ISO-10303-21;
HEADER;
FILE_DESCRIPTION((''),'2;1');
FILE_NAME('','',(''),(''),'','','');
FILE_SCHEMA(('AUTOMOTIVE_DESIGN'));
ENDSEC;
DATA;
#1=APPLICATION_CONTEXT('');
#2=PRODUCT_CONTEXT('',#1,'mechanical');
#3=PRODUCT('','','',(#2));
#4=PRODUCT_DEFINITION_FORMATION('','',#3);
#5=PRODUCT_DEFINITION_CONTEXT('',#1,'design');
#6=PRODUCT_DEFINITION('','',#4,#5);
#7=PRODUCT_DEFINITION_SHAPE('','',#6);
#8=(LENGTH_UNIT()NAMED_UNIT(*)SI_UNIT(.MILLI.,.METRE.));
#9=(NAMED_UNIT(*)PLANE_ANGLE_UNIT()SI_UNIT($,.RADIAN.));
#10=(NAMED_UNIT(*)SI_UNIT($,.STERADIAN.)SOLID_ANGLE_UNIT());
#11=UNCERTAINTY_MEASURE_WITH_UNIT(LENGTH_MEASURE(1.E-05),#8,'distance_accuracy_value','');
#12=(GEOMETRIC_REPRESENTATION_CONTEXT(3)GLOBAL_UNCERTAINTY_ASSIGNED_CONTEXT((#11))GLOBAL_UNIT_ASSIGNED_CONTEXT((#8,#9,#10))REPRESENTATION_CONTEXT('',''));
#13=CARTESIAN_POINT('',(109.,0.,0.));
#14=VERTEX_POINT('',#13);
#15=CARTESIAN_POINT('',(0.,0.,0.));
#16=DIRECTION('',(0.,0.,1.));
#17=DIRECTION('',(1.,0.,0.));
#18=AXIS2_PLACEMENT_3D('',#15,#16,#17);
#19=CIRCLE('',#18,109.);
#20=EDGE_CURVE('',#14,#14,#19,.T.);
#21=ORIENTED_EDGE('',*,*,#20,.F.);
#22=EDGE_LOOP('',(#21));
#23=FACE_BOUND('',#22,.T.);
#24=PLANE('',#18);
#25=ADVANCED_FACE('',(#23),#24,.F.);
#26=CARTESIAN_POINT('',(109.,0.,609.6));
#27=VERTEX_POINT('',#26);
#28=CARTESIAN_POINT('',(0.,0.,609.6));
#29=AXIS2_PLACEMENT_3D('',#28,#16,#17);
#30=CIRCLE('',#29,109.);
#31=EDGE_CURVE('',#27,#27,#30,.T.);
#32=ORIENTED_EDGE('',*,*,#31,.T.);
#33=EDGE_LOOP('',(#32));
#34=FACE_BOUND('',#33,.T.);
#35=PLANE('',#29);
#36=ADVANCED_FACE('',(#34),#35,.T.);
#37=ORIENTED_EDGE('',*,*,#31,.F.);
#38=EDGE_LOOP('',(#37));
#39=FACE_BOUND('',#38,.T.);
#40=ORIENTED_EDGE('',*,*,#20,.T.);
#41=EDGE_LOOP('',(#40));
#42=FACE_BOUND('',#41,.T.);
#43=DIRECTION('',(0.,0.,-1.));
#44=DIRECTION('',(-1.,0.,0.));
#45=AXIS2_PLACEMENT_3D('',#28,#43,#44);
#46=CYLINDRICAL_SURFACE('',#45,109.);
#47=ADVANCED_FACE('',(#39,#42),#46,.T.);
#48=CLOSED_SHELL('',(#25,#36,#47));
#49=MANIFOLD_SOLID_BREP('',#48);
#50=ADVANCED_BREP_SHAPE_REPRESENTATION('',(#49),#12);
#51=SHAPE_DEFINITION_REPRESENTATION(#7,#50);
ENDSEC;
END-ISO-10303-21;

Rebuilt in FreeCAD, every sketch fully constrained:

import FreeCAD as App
import Part
import Sketcher
from FreeCAD import Vector

doc = App.newDocument("Part")
body = doc.addObject("PartDesign::Body", "Body")

sketch1 = body.newObject("Sketcher::SketchObject", "Sketch")
sketch1.AttachmentSupport = (doc.getObject("XY_Plane"), [""])
sketch1.MapMode = "FlatFace"
sketch1.addGeometry(Part.Circle(Vector(0, 0, 0), Vector(0, 0, 1), 109), False)
sketch1.addGeometry(Part.Circle(Vector(0, 0, 0), Vector(0, 0, 1), 100), False)
sketch1.addConstraint(Sketcher.Constraint("Coincident", 0, 3, -1, 1))
sketch1.addConstraint(Sketcher.Constraint("Coincident", 1, 3, -1, 1))
sketch1.addConstraint(Sketcher.Constraint("Diameter", 0, 218.0))
sketch1.addConstraint(Sketcher.Constraint("Diameter", 1, 200.4))
pad1 = body.newObject("PartDesign::Pad", "Pad")
pad1.Profile = sketch1
pad1.Length = 609.6

sketch2 = body.newObject("Sketcher::SketchObject", "Sketch001")
sketch2.AttachmentSupport = (doc.getObject("XY_Plane"), [""])
sketch2.MapMode = "FlatFace"
sketch2.addGeometry(Part.Circle(Vector(0, 0, 0), Vector(0, 0, 1), 100), False)
sketch2.addConstraint(Sketcher.Constraint("Coincident", 0, 3, -1, 1))
sketch2.addConstraint(Sketcher.Constraint("Diameter", 0, 200.4))
pad2 = body.newObject("PartDesign::Pad", "Pad001")
pad2.Profile = sketch2
pad2.Length = 609.6

doc.recompute()
